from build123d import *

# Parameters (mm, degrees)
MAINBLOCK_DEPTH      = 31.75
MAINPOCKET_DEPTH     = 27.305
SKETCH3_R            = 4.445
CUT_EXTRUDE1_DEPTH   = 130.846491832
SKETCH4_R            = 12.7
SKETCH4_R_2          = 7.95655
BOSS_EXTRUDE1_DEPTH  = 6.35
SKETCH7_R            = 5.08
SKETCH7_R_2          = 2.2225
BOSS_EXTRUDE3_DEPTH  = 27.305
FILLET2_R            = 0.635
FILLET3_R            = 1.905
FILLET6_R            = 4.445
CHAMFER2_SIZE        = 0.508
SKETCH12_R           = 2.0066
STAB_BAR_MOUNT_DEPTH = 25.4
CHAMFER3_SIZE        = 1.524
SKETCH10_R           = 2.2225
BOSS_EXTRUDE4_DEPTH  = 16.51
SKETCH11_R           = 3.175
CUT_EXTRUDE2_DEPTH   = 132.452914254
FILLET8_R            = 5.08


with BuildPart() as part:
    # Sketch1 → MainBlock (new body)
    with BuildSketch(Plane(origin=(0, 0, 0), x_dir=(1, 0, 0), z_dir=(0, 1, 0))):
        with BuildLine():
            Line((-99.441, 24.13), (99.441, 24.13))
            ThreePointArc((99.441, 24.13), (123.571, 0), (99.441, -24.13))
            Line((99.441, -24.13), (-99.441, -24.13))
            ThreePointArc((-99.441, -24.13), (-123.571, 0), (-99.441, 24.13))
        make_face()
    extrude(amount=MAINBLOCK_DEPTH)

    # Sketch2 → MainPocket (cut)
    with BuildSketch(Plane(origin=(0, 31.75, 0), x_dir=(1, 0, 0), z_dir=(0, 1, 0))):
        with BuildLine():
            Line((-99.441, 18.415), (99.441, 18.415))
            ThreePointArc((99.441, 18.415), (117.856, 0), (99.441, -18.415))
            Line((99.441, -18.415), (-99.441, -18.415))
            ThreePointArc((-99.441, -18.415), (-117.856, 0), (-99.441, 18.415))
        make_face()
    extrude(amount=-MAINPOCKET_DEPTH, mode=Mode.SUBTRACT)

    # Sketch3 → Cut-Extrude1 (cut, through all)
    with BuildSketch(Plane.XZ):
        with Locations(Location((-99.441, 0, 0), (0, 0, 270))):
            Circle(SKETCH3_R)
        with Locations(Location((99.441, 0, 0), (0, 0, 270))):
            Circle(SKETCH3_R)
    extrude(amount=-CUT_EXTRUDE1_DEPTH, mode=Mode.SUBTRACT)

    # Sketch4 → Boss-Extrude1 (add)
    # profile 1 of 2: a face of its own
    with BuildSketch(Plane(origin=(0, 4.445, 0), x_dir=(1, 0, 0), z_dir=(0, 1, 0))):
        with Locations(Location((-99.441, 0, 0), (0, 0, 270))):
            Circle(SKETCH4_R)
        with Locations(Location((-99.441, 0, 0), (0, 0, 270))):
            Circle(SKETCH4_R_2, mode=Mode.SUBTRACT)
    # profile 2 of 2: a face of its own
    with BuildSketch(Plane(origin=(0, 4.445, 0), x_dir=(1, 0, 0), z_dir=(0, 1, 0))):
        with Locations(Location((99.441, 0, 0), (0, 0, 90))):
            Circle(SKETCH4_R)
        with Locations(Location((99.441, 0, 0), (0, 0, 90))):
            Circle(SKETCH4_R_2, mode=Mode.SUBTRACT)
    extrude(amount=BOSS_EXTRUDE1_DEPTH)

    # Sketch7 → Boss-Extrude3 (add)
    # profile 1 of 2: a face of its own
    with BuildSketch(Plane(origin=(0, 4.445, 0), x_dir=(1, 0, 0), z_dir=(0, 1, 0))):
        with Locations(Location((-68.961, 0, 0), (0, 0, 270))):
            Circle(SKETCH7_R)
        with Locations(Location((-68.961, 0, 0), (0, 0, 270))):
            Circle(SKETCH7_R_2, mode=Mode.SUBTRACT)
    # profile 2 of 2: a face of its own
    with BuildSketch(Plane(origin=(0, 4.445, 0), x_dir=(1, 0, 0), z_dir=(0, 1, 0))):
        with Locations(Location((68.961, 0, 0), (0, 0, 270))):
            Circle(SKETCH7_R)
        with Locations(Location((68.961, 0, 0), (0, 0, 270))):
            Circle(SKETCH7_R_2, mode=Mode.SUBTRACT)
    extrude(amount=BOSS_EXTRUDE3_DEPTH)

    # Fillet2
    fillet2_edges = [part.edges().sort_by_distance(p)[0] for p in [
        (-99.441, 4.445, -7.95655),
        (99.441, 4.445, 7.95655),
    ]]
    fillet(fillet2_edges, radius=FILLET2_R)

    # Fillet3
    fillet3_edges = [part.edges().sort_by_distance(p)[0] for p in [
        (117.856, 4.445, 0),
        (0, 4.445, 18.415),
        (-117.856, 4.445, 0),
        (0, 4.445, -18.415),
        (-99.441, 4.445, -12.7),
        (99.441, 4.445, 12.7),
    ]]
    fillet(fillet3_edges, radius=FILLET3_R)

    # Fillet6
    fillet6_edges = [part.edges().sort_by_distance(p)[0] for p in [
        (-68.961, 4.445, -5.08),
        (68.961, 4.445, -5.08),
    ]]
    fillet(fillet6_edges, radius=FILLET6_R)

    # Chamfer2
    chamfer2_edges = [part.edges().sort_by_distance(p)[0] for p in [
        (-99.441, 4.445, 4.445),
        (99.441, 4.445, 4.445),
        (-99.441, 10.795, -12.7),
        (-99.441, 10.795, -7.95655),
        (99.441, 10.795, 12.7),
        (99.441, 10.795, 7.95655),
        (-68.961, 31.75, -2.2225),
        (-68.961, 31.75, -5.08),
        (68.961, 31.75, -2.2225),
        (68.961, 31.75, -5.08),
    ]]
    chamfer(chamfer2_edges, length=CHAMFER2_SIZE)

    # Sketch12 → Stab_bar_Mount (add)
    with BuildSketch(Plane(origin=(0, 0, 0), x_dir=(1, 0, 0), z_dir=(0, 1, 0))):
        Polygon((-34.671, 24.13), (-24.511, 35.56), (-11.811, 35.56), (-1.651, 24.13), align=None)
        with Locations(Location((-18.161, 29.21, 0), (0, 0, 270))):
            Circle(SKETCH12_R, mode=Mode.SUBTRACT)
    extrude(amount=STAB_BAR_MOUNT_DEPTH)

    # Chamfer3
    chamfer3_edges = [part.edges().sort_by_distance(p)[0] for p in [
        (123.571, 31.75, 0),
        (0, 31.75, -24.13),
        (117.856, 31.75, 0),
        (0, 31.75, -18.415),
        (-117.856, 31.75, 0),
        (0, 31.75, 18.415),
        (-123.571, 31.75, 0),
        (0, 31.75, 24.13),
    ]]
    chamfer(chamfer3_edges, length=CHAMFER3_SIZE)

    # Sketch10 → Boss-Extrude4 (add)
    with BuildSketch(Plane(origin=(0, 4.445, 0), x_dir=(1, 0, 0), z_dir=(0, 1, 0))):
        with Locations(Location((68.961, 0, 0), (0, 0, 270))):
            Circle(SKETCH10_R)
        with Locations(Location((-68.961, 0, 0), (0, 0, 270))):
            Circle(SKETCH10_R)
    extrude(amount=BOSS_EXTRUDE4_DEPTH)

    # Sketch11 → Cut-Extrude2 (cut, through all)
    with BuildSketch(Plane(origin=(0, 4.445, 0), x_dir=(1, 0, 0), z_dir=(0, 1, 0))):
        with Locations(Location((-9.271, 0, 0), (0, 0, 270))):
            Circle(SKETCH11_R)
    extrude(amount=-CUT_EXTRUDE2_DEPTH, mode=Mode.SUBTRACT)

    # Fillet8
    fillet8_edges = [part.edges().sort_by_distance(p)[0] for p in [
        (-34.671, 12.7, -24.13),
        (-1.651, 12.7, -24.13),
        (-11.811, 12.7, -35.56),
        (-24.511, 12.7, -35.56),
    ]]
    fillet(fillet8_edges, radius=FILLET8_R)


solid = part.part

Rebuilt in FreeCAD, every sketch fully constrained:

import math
import FreeCAD as App
import Part
import Sketcher
Q = App.Units.Quantity


def edges_at(feature, points):
    """Names of the edges that pass closest to the given points."""
    edges = feature.Shape.Edges
    near = lambda p: min(range(len(edges)), key=lambda i: edges[i].distToShape(Part.Vertex(*p))[0])
    return sorted({f"Edge{near(p) + 1}" for p in points})


def add_polygon(sketch, points):
    """Adds a closed chain of lines whose ends are joined by coincident constraints."""
    first, n = sketch.GeometryCount, len(points)
    for a, b in zip(points, points[1:] + points[:1]):
        sketch.addGeometry(Part.LineSegment(App.Vector(*a, 0), App.Vector(*b, 0)), False)
    for i in range(n):
        sketch.addConstraint(Sketcher.Constraint("Coincident", first + i, 2, first + (i + 1) % n, 1))

doc = App.newDocument("Part")
params = doc.addObject("Spreadsheet::Sheet", "Params")
for row, (alias, value) in enumerate([
    ("sketch1_radius", "0.95 in"),
    ("sketch1_width", "7.83 in"),
    ("pad1_length", "1.25 in"),
    ("sketch2_radius", "0.725 in"),
    ("sketch2_width", "7.83 in"),
    ("pocket1_length", "1.075 in"),
    ("sketch3_diameter", "0.35 in"),
    ("sketch4_diameter", "1 in"),
    ("pad2_length", "0.25 in"),
    ("sketch5_diameter", "0.4 in"),
    ("sketch5_diameter2", "0.175 in"),
    ("pad3_length", "1.075 in"),
    ("fillet_radius", "0.025 in"),
    ("fillet2_radius", "0.075 in"),
    ("fillet3_radius", "0.175 in"),
    ("chamfer_size", "0.02 in"),
    ("sketch6_diameter", "0.158 in"),
    ("sketch6_width", "1.3 in"),
    ("sketch6_width2", "0.5 in"),
    ("pad4_length", "1 in"),
    ("chamfer2_size", "0.06 in"),
    ("sketch7_diameter", "0.175 in"),
    ("pad5_length", "0.65 in"),
    ("sketch8_diameter", "0.25 in"),
    ("fillet4_radius", "0.2 in"),
], start=1):
    params.set(f"A{row}", alias)
    params.set(f"B{row}", "=" + value)
    params.setAlias(f"B{row}", alias)

body = doc.addObject("PartDesign::Body", "Body")

# Sketch on XZ plane
sketch1 = body.newObject("Sketcher::SketchObject", "Sketch")
sketch1.AttachmentSupport = (doc.getObject("XZ_Plane"), [""])
sketch1.MapMode = "FlatFace"
sketch1.addGeometry(Part.LineSegment(App.Vector(99, -24, 0), App.Vector(-99, -24, 0)), False)
sketch1.addGeometry(Part.ArcOfCircle(Part.Circle(App.Vector(-99, 0, 0), App.Vector(0, 0, 1), 24), math.radians(90), math.radians(270)), False)
sketch1.addGeometry(Part.LineSegment(App.Vector(-99, 24, 0), App.Vector(99, 24, 0)), False)
sketch1.addGeometry(Part.ArcOfCircle(Part.Circle(App.Vector(99, 0, 0), App.Vector(0, 0, 1), 24), math.radians(-90), math.radians(90)), False)
sketch1.addConstraint(Sketcher.Constraint("Tangent", 0, 2, 1, 2))
sketch1.addConstraint(Sketcher.Constraint("Tangent", 1, 1, 2, 1))
sketch1.addConstraint(Sketcher.Constraint("Tangent", 2, 2, 3, 2))
sketch1.addConstraint(Sketcher.Constraint("Tangent", 3, 1, 0, 1))
sketch1.addConstraint(Sketcher.Constraint("Horizontal", 0))
sketch1.addConstraint(Sketcher.Constraint("Horizontal", 2))
sketch1.addConstraint(Sketcher.Constraint("Symmetric", 1, 3, 3, 3, -1, 1))
sketch1.addConstraint(Sketcher.Constraint("Radius", 1, Q("0.95 in")))
sketch1.addConstraint(Sketcher.Constraint("DistanceX", 0, 2, 0, 1, Q("7.83 in")))
sketch1.setExpression("Constraints[7]", "Params.sketch1_radius")
sketch1.setExpression("Constraints[8]", "Params.sketch1_width")
pad1 = body.newObject("PartDesign::Pad", "Pad")
pad1.Profile = sketch1
pad1.setExpression("Length", "Params.pad1_length")
pad1.Reversed = True

# Sketch on XZ plane
sketch2 = body.newObject("Sketcher::SketchObject", "Sketch001")
sketch2.AttachmentSupport = (doc.getObject("XZ_Plane"), [""])
sketch2.MapMode = "FlatFace"
sketch2.AttachmentOffset = App.Placement(App.Vector(0, 0, -1.25 * 25.4), App.Rotation())
sketch2.addGeometry(Part.LineSegment(App.Vector(99, -18, 0), App.Vector(-99, -18, 0)), False)
sketch2.addGeometry(Part.ArcOfCircle(Part.Circle(App.Vector(-99, 0, 0), App.Vector(0, 0, 1), 18), math.radians(90), math.radians(270)), False)
sketch2.addGeometry(Part.LineSegment(App.Vector(-99, 18, 0), App.Vector(99, 18, 0)), False)
sketch2.addGeometry(Part.ArcOfCircle(Part.Circle(App.Vector(99, 0, 0), App.Vector(0, 0, 1), 18), math.radians(-90), math.radians(90)), False)
sketch2.addConstraint(Sketcher.Constraint("Tangent", 0, 2, 1, 2))
sketch2.addConstraint(Sketcher.Constraint("Tangent", 1, 1, 2, 1))
sketch2.addConstraint(Sketcher.Constraint("Tangent", 2, 2, 3, 2))
sketch2.addConstraint(Sketcher.Constraint("Tangent", 3, 1, 0, 1))
sketch2.addConstraint(Sketcher.Constraint("Horizontal", 0))
sketch2.addConstraint(Sketcher.Constraint("Horizontal", 2))
sketch2.addConstraint(Sketcher.Constraint("Symmetric", 1, 3, 3, 3, -1, 1))
sketch2.addConstraint(Sketcher.Constraint("Radius", 1, Q("0.725 in")))
sketch2.addConstraint(Sketcher.Constraint("DistanceX", 0, 2, 0, 1, Q("7.83 in")))
sketch2.setExpression("Constraints[7]", "Params.sketch2_radius")
sketch2.setExpression("Constraints[8]", "Params.sketch2_width")
pocket1 = body.newObject("PartDesign::Pocket", "Pocket")
pocket1.Profile = sketch2
pocket1.setExpression("Length", "Params.pocket1_length")
pocket1.Reversed = True

# Sketch on XZ plane
sketch3 = body.newObject("Sketcher::SketchObject", "Sketch002")
sketch3.AttachmentSupport = (doc.getObject("XZ_Plane"), [""])
sketch3.MapMode = "FlatFace"
sketch3.addGeometry(Part.Circle(App.Vector(-99.4, 0, 0), App.Vector(0, 0, 1), 4.4), False)
sketch3.addGeometry(Part.Circle(App.Vector(99.4, 0, 0), App.Vector(0, 0, 1), 4.4), False)
sketch3.addConstraint(Sketcher.Constraint("Equal", 0, 1))
sketch3.addConstraint(Sketcher.Constraint("Symmetric", 0, 3, 1, 3, -1, 1))
sketch3.addConstraint(Sketcher.Constraint("PointOnObject", 0, 3, -1))
sketch3.addConstraint(Sketcher.Constraint("Diameter", 0, Q("0.35 in")))
sketch3.addConstraint(Sketcher.Constraint("DistanceX", 0, 3, 1, 3, Q("7.83 in")))
sketch3.setExpression("Constraints[3]", "Params.sketch3_diameter")
pocket2 = body.newObject("PartDesign::Pocket", "Pocket001")
pocket2.Profile = sketch3
pocket2.Type = "ThroughAll"

# Sketch on XZ plane
sketch4 = body.newObject("Sketcher::SketchObject", "Sketch003")
sketch4.AttachmentSupport = (doc.getObject("XZ_Plane"), [""])
sketch4.MapMode = "FlatFace"
sketch4.AttachmentOffset = App.Placement(App.Vector(0, 0, -0.175 * 25.4), App.Rotation())
sketch4.addGeometry(Part.Circle(App.Vector(-99, 0, 0), App.Vector(0, 0, 1), 13), False)
sketch4.addGeometry(Part.Circle(App.Vector(-99, 0, 0), App.Vector(0, 0, 1), 8), False)
sketch4.addGeometry(Part.Circle(App.Vector(99, 0, 0), App.Vector(0, 0, 1), 13), False)
sketch4.addGeometry(Part.Circle(App.Vector(99, 0, 0), App.Vector(0, 0, 1), 8), False)
sketch4.addConstraint(Sketcher.Constraint("Coincident", 1, 3, 0, 3))
sketch4.addConstraint(Sketcher.Constraint("Coincident", 3, 3, 2, 3))
sketch4.addConstraint(Sketcher.Constraint("Equal", 0, 2))
sketch4.addConstraint(Sketcher.Constraint("Equal", 1, 3))
sketch4.addConstraint(Sketcher.Constraint("Symmetric", 0, 3, 2, 3, -1, 1))
sketch4.addConstraint(Sketcher.Constraint("PointOnObject", 0, 3, -1))
sketch4.addConstraint(Sketcher.Constraint("Diameter", 0, Q("1 in")))
sketch4.addConstraint(Sketcher.Constraint("Diameter", 1, Q("0.6265 in")))
sketch4.addConstraint(Sketcher.Constraint("DistanceX", 0, 3, 2, 3, Q("7.83 in")))
sketch4.setExpression("Constraints[6]", "Params.sketch4_diameter")
pad2 = body.newObject("PartDesign::Pad", "Pad001")
pad2.Profile = sketch4
pad2.setExpression("Length", "Params.pad2_length")
pad2.Reversed = True

# Sketch on XZ plane
sketch5 = body.newObject("Sketcher::SketchObject", "Sketch004")
sketch5.AttachmentSupport = (doc.getObject("XZ_Plane"), [""])
sketch5.MapMode = "FlatFace"
sketch5.AttachmentOffset = App.Placement(App.Vector(0, 0, -0.175 * 25.4), App.Rotation())
sketch5.addGeometry(Part.Circle(App.Vector(-69, 0, 0), App.Vector(0, 0, 1), 5.1), False)
sketch5.addGeometry(Part.Circle(App.Vector(-69, 0, 0), App.Vector(0, 0, 1), 2.2), False)
sketch5.addGeometry(Part.Circle(App.Vector(69, 0, 0), App.Vector(0, 0, 1), 5.1), False)
sketch5.addGeometry(Part.Circle(App.Vector(69, 0, 0), App.Vector(0, 0, 1), 2.2), False)
sketch5.addConstraint(Sketcher.Constraint("Coincident", 1, 3, 0, 3))
sketch5.addConstraint(Sketcher.Constraint("Coincident", 3, 3, 2, 3))
sketch5.addConstraint(Sketcher.Constraint("Equal", 0, 2))
sketch5.addConstraint(Sketcher.Constraint("Equal", 1, 3))
sketch5.addConstraint(Sketcher.Constraint("Symmetric", 0, 3, 2, 3, -1, 1))
sketch5.addConstraint(Sketcher.Constraint("PointOnObject", 0, 3, -1))
sketch5.addConstraint(Sketcher.Constraint("Diameter", 0, Q("0.4 in")))
sketch5.addConstraint(Sketcher.Constraint("Diameter", 1, Q("0.175 in")))
sketch5.addConstraint(Sketcher.Constraint("DistanceX", 0, 3, 2, 3, Q("5.43 in")))
sketch5.setExpression("Constraints[6]", "Params.sketch5_diameter")
sketch5.setExpression("Constraints[7]", "Params.sketch5_diameter2")
pad3 = body.newObject("PartDesign::Pad", "Pad002")
pad3.Profile = sketch5
pad3.setExpression("Length", "Params.pad3_length")
pad3.Reversed = True
doc.recompute()

fillet = body.newObject("PartDesign::Fillet", "Fillet")
fillet.Base = (pad3, edges_at(pad3, [(-99.441, 4.445, -7.957), (99.441, 4.445, 7.957)]))
fillet.setExpression("Radius", "Params.fillet_radius")
doc.recompute()

fillet2 = body.newObject("PartDesign::Fillet", "Fillet001")
fillet2.Base = (fillet, edges_at(fillet, [
    (117.856, 4.445, 0),
    (0, 4.445, 18.415),
    (-117.856, 4.445, 0),
    (0, 4.445, -18.415),
    (-99.441, 4.445, -12.7),
    (99.441, 4.445, 12.7),
]))
fillet2.setExpression("Radius", "Params.fillet2_radius")
doc.recompute()

fillet3 = body.newObject("PartDesign::Fillet", "Fillet002")
fillet3.Base = (fillet2, edges_at(fillet2, [(-68.961, 4.445, -5.08), (68.961, 4.445, -5.08)]))
fillet3.setExpression("Radius", "Params.fillet3_radius")
doc.recompute()

chamfer = body.newObject("PartDesign::Chamfer", "Chamfer")
chamfer.Base = (fillet3, edges_at(fillet3, [
    (-99.441, 4.445, 4.445),
    (99.441, 4.445, 4.445),
    (-99.441, 10.795, -12.7),
    (-99.441, 10.795, -7.957),
    (99.441, 10.795, 12.7),
    (99.441, 10.795, 7.957),
    (-68.961, 31.75, -2.223),
    (-68.961, 31.75, -5.08),
    (68.961, 31.75, -2.223),
    (68.961, 31.75, -5.08),
]))
chamfer.setExpression("Size", "Params.chamfer_size")

# Sketch on XZ plane
sketch6 = body.newObject("Sketcher::SketchObject", "Sketch005")
sketch6.AttachmentSupport = (doc.getObject("XZ_Plane"), [""])
sketch6.MapMode = "FlatFace"
add_polygon(sketch6, [(-24.5, -35.6), (-34.7, -24.1), (-1.7, -24.1), (-11.8, -35.6)])  # lines 0-3
sketch6.addGeometry(Part.Circle(App.Vector(-18.2, -29.2, 0), App.Vector(0, 0, 1), 2), False)  # 4
sketch6.addConstraint(Sketcher.Constraint("Horizontal", 1))
sketch6.addConstraint(Sketcher.Constraint("Horizontal", 3))
sketch6.addConstraint(Sketcher.Constraint("Equal", 0, 2))
sketch6.addConstraint(Sketcher.Constraint("Diameter", 4, Q("0.158 in")))
sketch6.addConstraint(Sketcher.Constraint("DistanceX", 1, 1, 1, 2, Q("1.3 in")))
sketch6.addConstraint(Sketcher.Constraint("DistanceX", 3, 2, 3, 1, Q("0.5 in")))
sketch6.addConstraint(Sketcher.Constraint("DistanceY", 2, 2, -1, 1, Q("1.4 in")))
sketch6.addConstraint(Sketcher.Constraint("DistanceY", 4, 3, 0, 2, Q("0.2 in")))
sketch6.addConstraint(Sketcher.Constraint("DistanceY", 4, 3, -1, 1, Q("1.15 in")))
sketch6.addConstraint(Sketcher.Constraint("DistanceX", 0, 2, 4, 3, Q("0.65 in")))
sketch6.addConstraint(Sketcher.Constraint("DistanceX", 4, 3, -1, 1, Q("0.715 in")))
sketch6.setExpression("Constraints[7]", "Params.sketch6_diameter")
sketch6.setExpression("Constraints[8]", "Params.sketch6_width")
sketch6.setExpression("Constraints[9]", "Params.sketch6_width2")
pad4 = body.newObject("PartDesign::Pad", "Pad003")
pad4.Profile = sketch6
pad4.setExpression("Length", "Params.pad4_length")
pad4.Reversed = True
doc.recompute()

chamfer2 = body.newObject("PartDesign::Chamfer", "Chamfer001")
chamfer2.Base = (pad4, edges_at(pad4, [
    (123.571, 31.75, 0),
    (0, 31.75, -24.13),
    (117.856, 31.75, 0),
    (0, 31.75, -18.415),
    (-117.856, 31.75, 0),
    (0, 31.75, 18.415),
    (-123.571, 31.75, 0),
    (0, 31.75, 24.13),
]))
chamfer2.setExpression("Size", "Params.chamfer2_size")

# Sketch on XZ plane
sketch7 = body.newObject("Sketcher::SketchObject", "Sketch006")
sketch7.AttachmentSupport = (doc.getObject("XZ_Plane"), [""])
sketch7.MapMode = "FlatFace"
sketch7.AttachmentOffset = App.Placement(App.Vector(0, 0, -0.175 * 25.4), App.Rotation())
sketch7.addGeometry(Part.Circle(App.Vector(69, 0, 0), App.Vector(0, 0, 1), 2.2), False)
sketch7.addGeometry(Part.Circle(App.Vector(-69, 0, 0), App.Vector(0, 0, 1), 2.2), False)
sketch7.addConstraint(Sketcher.Constraint("Equal", 0, 1))
sketch7.addConstraint(Sketcher.Constraint("Symmetric", 0, 3, 1, 3, -1, 1))
sketch7.addConstraint(Sketcher.Constraint("PointOnObject", 0, 3, -1))
sketch7.addConstraint(Sketcher.Constraint("Diameter", 0, Q("0.175 in")))
sketch7.addConstraint(Sketcher.Constraint("DistanceX", 1, 3, 0, 3, Q("5.43 in")))
sketch7.setExpression("Constraints[3]", "Params.sketch7_diameter")
pad5 = body.newObject("PartDesign::Pad", "Pad004")
pad5.Profile = sketch7
pad5.setExpression("Length", "Params.pad5_length")
pad5.Reversed = True

# Sketch on XZ plane
sketch8 = body.newObject("Sketcher::SketchObject", "Sketch007")
sketch8.AttachmentSupport = (doc.getObject("XZ_Plane"), [""])
sketch8.MapMode = "FlatFace"
sketch8.AttachmentOffset = App.Placement(App.Vector(0, 0, -0.175 * 25.4), App.Rotation())
sketch8.addGeometry(Part.Circle(App.Vector(-9.3, 0, 0), App.Vector(0, 0, 1), 3.2), False)
sketch8.addConstraint(Sketcher.Constraint("PointOnObject", 0, 3, -1))
sketch8.addConstraint(Sketcher.Constraint("Diameter", 0, Q("0.25 in")))
sketch8.addConstraint(Sketcher.Constraint("DistanceX", 0, 3, -1, 1, Q("0.365 in")))
sketch8.setExpression("Constraints[1]", "Params.sketch8_diameter")
pocket3 = body.newObject("PartDesign::Pocket", "Pocket002")
pocket3.Profile = sketch8
pocket3.Type = "ThroughAll"
pocket3.Reversed = True
doc.recompute()

fillet4 = body.newObject("PartDesign::Fillet", "Fillet003")
fillet4.Base = (pocket3, edges_at(pocket3, [
    (-34.671, 12.7, -24.13),
    (-1.651, 12.7, -24.13),
    (-11.811, 12.7, -35.56),
    (-24.511, 12.7, -35.56),
]))
fillet4.setExpression("Radius", "Params.fillet4_radius")

doc.recompute()
